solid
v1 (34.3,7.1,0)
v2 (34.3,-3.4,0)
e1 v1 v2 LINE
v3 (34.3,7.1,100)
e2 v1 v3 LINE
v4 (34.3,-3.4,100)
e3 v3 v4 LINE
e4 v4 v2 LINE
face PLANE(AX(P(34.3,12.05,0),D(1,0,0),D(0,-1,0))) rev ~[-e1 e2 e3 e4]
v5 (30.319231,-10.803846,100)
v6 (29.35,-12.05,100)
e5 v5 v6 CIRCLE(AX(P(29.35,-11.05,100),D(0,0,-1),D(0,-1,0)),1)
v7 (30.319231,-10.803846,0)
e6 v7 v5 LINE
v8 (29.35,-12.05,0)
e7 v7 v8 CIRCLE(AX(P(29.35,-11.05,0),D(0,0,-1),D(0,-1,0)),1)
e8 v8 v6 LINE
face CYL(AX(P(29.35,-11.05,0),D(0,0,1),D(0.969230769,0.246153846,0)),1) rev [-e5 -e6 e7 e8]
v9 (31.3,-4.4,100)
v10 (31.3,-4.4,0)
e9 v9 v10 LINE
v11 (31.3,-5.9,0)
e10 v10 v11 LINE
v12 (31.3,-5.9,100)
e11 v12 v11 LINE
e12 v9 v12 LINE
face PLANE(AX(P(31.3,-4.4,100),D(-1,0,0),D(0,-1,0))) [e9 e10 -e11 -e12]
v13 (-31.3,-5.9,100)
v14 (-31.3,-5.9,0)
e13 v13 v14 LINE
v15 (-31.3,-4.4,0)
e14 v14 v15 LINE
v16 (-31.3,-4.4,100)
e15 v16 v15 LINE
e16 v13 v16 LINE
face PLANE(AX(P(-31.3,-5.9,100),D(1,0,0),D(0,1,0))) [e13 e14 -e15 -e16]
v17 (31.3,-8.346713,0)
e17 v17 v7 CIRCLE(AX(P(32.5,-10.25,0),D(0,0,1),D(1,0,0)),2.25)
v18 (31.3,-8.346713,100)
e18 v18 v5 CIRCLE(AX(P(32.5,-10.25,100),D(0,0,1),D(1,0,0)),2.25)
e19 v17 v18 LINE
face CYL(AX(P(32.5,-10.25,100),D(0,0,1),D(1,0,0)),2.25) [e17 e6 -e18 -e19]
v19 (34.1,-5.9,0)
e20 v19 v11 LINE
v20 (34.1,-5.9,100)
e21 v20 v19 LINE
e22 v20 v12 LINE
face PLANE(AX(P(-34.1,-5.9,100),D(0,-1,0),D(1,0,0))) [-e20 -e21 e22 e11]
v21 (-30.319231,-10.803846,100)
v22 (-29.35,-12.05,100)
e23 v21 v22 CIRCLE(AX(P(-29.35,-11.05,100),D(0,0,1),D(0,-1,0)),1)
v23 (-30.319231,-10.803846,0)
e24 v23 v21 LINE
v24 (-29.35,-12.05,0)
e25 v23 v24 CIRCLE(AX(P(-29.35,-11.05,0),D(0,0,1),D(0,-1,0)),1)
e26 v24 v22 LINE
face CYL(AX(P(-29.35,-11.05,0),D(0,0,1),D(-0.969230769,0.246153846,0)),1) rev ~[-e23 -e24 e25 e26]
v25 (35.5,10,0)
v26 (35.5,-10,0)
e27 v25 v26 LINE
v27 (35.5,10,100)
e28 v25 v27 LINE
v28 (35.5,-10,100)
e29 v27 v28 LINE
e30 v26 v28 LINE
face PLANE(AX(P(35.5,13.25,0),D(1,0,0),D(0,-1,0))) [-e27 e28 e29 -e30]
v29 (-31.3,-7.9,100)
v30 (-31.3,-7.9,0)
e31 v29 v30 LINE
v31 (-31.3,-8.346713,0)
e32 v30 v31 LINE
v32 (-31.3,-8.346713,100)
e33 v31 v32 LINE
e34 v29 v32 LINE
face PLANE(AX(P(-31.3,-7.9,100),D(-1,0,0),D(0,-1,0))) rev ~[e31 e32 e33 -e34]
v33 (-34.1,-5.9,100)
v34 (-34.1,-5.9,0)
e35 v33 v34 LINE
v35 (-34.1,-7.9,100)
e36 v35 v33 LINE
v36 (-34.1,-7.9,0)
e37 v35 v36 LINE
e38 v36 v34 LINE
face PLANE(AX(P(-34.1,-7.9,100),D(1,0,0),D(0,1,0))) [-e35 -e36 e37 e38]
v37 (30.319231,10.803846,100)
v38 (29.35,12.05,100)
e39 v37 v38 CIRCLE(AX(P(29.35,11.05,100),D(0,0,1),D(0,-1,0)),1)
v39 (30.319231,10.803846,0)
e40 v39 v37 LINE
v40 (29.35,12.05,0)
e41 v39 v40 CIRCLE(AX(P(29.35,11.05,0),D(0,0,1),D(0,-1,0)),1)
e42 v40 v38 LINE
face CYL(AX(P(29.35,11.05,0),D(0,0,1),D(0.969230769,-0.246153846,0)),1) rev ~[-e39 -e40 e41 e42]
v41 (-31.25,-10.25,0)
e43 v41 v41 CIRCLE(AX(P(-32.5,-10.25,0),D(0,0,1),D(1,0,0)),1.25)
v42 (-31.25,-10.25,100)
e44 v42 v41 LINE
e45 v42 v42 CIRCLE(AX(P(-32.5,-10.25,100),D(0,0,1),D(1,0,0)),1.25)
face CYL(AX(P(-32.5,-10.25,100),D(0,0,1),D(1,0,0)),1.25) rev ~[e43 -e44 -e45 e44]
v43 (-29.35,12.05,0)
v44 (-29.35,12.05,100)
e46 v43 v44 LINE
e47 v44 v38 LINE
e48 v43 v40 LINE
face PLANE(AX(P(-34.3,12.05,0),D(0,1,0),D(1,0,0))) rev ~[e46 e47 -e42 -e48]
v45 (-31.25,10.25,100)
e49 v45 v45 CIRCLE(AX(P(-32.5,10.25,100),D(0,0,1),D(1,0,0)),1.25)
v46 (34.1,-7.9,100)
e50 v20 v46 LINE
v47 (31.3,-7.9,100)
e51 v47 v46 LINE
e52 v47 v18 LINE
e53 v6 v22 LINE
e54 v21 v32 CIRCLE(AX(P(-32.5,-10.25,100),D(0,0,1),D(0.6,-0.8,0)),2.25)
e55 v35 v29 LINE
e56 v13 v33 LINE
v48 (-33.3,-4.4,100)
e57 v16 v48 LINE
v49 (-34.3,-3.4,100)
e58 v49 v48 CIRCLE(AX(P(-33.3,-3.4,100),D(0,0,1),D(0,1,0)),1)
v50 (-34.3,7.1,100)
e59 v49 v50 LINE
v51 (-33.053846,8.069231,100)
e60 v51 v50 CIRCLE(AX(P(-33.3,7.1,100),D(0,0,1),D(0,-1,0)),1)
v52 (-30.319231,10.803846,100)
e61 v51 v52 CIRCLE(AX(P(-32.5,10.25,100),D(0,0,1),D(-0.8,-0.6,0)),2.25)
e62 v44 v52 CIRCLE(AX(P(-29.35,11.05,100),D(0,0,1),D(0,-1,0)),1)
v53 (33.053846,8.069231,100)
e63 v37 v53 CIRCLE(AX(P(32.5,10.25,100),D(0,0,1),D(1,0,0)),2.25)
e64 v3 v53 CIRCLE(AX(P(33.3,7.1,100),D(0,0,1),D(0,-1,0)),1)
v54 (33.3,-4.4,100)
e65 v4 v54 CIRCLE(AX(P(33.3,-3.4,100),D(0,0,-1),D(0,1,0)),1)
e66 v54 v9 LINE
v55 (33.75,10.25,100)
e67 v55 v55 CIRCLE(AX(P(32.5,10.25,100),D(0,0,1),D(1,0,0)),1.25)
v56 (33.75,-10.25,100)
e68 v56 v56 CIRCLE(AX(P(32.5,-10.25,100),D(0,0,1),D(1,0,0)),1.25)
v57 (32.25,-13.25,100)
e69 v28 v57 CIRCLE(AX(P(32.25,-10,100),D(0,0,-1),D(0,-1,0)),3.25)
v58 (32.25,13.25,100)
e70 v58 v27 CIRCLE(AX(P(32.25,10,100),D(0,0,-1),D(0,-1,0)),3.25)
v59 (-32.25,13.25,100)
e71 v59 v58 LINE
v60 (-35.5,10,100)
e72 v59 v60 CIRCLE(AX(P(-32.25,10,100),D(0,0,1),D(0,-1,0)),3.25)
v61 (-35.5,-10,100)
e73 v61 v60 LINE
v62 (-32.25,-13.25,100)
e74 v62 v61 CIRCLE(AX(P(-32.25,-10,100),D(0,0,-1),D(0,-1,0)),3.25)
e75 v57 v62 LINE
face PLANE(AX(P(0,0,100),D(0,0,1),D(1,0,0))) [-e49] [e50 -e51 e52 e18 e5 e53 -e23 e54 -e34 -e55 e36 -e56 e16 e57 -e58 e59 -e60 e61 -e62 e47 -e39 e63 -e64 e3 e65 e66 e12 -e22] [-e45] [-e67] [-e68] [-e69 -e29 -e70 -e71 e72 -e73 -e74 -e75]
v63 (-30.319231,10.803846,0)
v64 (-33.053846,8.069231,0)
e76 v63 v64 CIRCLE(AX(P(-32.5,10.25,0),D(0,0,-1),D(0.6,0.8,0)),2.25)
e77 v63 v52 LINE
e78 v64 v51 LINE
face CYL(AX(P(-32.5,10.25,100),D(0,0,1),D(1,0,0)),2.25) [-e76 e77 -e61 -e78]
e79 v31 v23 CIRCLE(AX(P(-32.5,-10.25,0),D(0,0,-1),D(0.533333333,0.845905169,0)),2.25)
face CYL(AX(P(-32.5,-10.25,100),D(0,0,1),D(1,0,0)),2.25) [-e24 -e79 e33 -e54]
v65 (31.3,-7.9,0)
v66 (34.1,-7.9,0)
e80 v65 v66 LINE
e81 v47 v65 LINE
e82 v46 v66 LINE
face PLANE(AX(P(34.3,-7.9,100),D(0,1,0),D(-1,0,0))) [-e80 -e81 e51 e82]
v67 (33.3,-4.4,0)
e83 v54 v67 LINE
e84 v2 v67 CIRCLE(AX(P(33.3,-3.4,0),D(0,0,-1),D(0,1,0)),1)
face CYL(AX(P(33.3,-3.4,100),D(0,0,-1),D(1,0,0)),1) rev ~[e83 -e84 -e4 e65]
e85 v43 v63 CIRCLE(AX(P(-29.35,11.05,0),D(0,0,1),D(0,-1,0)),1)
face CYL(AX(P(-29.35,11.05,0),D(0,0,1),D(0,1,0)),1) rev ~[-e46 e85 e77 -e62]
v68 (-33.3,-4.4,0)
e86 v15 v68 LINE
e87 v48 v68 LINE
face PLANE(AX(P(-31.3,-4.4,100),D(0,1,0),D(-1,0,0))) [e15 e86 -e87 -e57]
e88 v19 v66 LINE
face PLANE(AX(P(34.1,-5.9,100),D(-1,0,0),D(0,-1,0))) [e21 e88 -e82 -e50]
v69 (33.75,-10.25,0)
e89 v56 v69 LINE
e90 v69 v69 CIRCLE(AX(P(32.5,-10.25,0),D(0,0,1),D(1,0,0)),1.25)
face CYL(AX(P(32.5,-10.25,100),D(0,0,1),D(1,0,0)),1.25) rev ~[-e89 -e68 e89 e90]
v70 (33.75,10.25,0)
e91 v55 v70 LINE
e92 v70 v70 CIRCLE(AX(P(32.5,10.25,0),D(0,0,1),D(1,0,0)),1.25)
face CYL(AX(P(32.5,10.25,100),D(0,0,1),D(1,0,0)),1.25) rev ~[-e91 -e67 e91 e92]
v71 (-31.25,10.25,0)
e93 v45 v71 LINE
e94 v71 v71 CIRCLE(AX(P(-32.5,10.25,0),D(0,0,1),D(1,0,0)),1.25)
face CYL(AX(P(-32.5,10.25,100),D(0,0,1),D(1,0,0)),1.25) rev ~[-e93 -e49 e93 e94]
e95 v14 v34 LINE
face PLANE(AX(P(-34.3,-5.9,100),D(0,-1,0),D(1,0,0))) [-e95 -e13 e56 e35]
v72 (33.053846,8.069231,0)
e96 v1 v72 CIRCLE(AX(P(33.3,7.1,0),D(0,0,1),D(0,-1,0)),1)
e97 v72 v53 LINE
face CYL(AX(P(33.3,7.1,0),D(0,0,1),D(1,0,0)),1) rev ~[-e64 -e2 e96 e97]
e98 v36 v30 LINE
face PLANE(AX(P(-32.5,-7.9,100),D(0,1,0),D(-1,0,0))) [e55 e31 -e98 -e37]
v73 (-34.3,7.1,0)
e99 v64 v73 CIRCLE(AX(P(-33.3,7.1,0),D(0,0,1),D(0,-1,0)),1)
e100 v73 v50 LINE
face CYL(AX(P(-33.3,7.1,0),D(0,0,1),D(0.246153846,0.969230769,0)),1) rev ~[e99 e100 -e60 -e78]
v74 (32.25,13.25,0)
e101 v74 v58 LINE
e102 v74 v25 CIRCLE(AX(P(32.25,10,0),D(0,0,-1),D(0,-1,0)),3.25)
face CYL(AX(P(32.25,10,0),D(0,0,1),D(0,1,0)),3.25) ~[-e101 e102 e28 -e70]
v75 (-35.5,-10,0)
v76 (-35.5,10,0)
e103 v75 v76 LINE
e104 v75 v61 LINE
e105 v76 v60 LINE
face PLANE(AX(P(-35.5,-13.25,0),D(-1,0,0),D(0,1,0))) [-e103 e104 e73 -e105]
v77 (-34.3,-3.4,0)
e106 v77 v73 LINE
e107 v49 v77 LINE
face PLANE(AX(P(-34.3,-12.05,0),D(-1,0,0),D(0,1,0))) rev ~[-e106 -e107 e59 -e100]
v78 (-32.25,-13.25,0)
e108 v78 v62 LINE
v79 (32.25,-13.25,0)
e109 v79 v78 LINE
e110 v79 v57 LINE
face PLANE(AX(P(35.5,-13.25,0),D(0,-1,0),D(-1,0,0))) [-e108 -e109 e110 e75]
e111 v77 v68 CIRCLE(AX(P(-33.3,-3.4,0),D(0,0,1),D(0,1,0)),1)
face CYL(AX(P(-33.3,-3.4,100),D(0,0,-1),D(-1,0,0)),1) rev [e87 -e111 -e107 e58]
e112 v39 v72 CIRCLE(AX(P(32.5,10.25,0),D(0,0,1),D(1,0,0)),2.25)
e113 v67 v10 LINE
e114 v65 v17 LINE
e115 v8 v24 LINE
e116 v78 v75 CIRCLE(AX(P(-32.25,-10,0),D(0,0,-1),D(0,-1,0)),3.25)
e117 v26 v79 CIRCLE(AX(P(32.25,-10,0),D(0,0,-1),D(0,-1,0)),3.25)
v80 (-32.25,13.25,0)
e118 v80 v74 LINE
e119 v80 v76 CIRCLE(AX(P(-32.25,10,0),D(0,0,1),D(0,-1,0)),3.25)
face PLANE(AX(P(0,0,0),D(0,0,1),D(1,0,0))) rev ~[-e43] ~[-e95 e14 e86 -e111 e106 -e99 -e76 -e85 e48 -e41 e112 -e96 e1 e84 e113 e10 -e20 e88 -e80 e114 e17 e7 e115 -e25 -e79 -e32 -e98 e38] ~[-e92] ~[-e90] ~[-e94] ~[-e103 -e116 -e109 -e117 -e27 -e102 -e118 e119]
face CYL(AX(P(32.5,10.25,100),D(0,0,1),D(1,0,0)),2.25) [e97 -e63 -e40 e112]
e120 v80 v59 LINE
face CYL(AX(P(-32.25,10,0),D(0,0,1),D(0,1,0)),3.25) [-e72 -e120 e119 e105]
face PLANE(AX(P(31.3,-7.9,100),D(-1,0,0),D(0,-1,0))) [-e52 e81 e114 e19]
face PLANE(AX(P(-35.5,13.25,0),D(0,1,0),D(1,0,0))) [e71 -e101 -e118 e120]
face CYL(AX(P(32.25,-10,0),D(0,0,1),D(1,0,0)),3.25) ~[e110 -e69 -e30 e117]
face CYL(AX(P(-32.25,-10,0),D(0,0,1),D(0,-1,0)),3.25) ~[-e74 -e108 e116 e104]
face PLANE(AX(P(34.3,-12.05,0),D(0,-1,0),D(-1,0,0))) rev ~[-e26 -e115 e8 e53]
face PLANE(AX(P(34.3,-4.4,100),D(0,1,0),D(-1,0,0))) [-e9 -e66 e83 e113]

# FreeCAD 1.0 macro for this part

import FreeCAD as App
import Part
import Sketcher
Q = App.Units.Quantity


def edges_at(feature, points):
    """Names of the edges that pass closest to the given points."""
    edges = feature.Shape.Edges
    near = lambda p: min(range(len(edges)), key=lambda i: edges[i].distToShape(Part.Vertex(*p))[0])
    return sorted({f"Edge{near(p) + 1}" for p in points})


def add_polygon(sketch, points):
    """Adds a closed chain of lines whose ends are joined by coincident constraints."""
    first, n = sketch.GeometryCount, len(points)
    for a, b in zip(points, points[1:] + points[:1]):
        sketch.addGeometry(Part.LineSegment(App.Vector(*a, 0), App.Vector(*b, 0)), False)
    for i in range(n):
        sketch.addConstraint(Sketcher.Constraint("Coincident", first + i, 2, first + (i + 1) % n, 1))

doc = App.newDocument("Part")
body = doc.addObject("PartDesign::Body", "Body")

sketch1 = body.newObject("Sketcher::SketchObject", "Sketch")
sketch1.AttachmentSupport = (doc.getObject("XY_Plane"), [""])
sketch1.MapMode = "FlatFace"
add_polygon(sketch1, [(35.5, 13.25), (-35.5, 13.25), (-35.5, -13.25), (35.5, -13.25)])
add_polygon(sketch1, [(-34.3, -12.05), (-34.3, 12.05), (34.3, 12.05), (34.3, -12.05)])
sketch1.addConstraint(Sketcher.Constraint("Horizontal", 0))
sketch1.addConstraint(Sketcher.Constraint("Vertical", 1))
sketch1.addConstraint(Sketcher.Constraint("Horizontal", 2))
sketch1.addConstraint(Sketcher.Constraint("Vertical", 3))
sketch1.addConstraint(Sketcher.Constraint("Vertical", 4))
sketch1.addConstraint(Sketcher.Constraint("Horizontal", 5))
sketch1.addConstraint(Sketcher.Constraint("Vertical", 6))
sketch1.addConstraint(Sketcher.Constraint("Horizontal", 7))
sketch1.addConstraint(Sketcher.Constraint("Symmetric", 0, 2, 2, 2, -1, 1))
sketch1.addConstraint(Sketcher.Constraint("Symmetric", 4, 2, 6, 2, -1, 1))
sketch1.addConstraint(Sketcher.Constraint("DistanceX", 0, 2, 0, 1, Q("71 mm")))
sketch1.addConstraint(Sketcher.Constraint("DistanceY", 1, 2, 1, 1, Q("26.5 mm")))
sketch1.addConstraint(Sketcher.Constraint("DistanceX", 0, 2, 4, 2, Q("1.2 mm")))
sketch1.addConstraint(Sketcher.Constraint("DistanceY", 4, 2, 0, 2, Q("1.2 mm")))
pad1 = body.newObject("PartDesign::Pad", "Pad")
pad1.Profile = sketch1
pad1.Length = 100
doc.recompute()

fillet = body.newObject("PartDesign::Fillet", "Fillet")
fillet.Base = (pad1, edges_at(pad1, [
    (-34.3, 12.05, 50),
    (34.3, 12.05, 50),
    (34.3, -12.05, 50),
    (-34.3, -12.05, 50),
]))
fillet.Radius = 2
doc.recompute()

fillet2 = body.newObject("PartDesign::Fillet", "Fillet001")
fillet2.Base = (fillet, edges_at(fillet, [
    (-35.5, 13.25, 50),
    (-35.5, -13.25, 50),
    (35.5, -13.25, 50),
    (35.5, 13.25, 50),
]))
fillet2.Radius = 3.25

sketch2 = body.newObject("Sketcher::SketchObject", "Sketch001")
sketch2.AttachmentSupport = (doc.getObject("XY_Plane"), [""])
sketch2.MapMode = "FlatFace"
sketch2.AttachmentOffset = App.Placement(App.Vector(0, 0, 100), App.Rotation())
add_polygon(sketch2, [(-34.3, -4.4), (-34.3, -5.9), (-31.3, -5.9), (-31.3, -4.4)])
add_polygon(sketch2, [(-34.3, -7.9), (-34.3, -9.4), (-31.3, -9.4), (-31.3, -7.9)])
add_polygon(sketch2, [(34.3, -9.4), (34.3, -7.9), (31.3, -7.9), (31.3, -9.4)])
add_polygon(sketch2, [(34.3, -5.9), (34.3, -4.4), (31.3, -4.4), (31.3, -5.9)])
sketch2.addConstraint(Sketcher.Constraint("Vertical", 0))
sketch2.addConstraint(Sketcher.Constraint("Horizontal", 1))
sketch2.addConstraint(Sketcher.Constraint("Vertical", 2))
sketch2.addConstraint(Sketcher.Constraint("Horizontal", 3))
sketch2.addConstraint(Sketcher.Constraint("Vertical", 4))
sketch2.addConstraint(Sketcher.Constraint("Horizontal", 5))
sketch2.addConstraint(Sketcher.Constraint("Vertical", 6))
sketch2.addConstraint(Sketcher.Constraint("Horizontal", 7))
sketch2.addConstraint(Sketcher.Constraint("Vertical", 8))
sketch2.addConstraint(Sketcher.Constraint("Horizontal", 9))
sketch2.addConstraint(Sketcher.Constraint("Vertical", 10))
sketch2.addConstraint(Sketcher.Constraint("Horizontal", 11))
sketch2.addConstraint(Sketcher.Constraint("Vertical", 12))
sketch2.addConstraint(Sketcher.Constraint("Horizontal", 13))
sketch2.addConstraint(Sketcher.Constraint("Vertical", 14))
sketch2.addConstraint(Sketcher.Constraint("Horizontal", 15))
sketch2.addConstraint(Sketcher.Constraint("Symmetric", 7, 2, 8, 2, -2))
sketch2.addConstraint(Sketcher.Constraint("Symmetric", 5, 2, 10, 2, -2))
sketch2.addConstraint(Sketcher.Constraint("Symmetric", 3, 2, 12, 2, -2))
sketch2.addConstraint(Sketcher.Constraint("Symmetric", 1, 2, 14, 2, -2))
sketch2.addConstraint(Sketcher.Constraint("Vertical", 3, 2, 4, 2))
sketch2.addConstraint(Sketcher.Constraint("Vertical", 2, 2, 5, 2))
sketch2.addConstraint(Sketcher.Constraint("Equal", 2, 4))
sketch2.addConstraint(Sketcher.Constraint("DistanceX", 1, 1, 1, 2, Q("3 mm")))
sketch2.addConstraint(Sketcher.Constraint("DistanceY", 0, 2, 0, 1, Q("1.5 mm")))
sketch2.addConstraint(Sketcher.Constraint("DistanceY", 6, 2, 1, 2, Q("2 mm")))
sketch2.addConstraint(Sketcher.Constraint("DistanceX", 0, 2, -1, 1, Q("34.3 mm")))
sketch2.addConstraint(Sketcher.Constraint("DistanceY", 0, 2, -1, 1, Q("5.9 mm")))
pad2 = body.newObject("PartDesign::Pad", "Pad001")
pad2.Profile = sketch2
pad2.Length = 100
pad2.Reversed = True
doc.recompute()

fillet3 = body.newObject("PartDesign::Fillet", "Fillet002")
fillet3.Base = (pad2, edges_at(pad2, [
    (-34.3, -4.4, 50),
    (-34.3, -9.4, 50),
    (34.3, -9.4, 50),
    (34.3, -4.4, 50),
]))
fillet3.Radius = 1

sketch3 = body.newObject("Sketcher::SketchObject", "Sketch002")
sketch3.AttachmentSupport = (doc.getObject("XY_Plane"), [""])
sketch3.MapMode = "FlatFace"
sketch3.AttachmentOffset = App.Placement(App.Vector(0, 0, 100), App.Rotation())
sketch3.addGeometry(Part.Circle(App.Vector(-32.5, 10.25, 0), App.Vector(0, 0, 1), 2.25), False)
sketch3.addGeometry(Part.Circle(App.Vector(-32.5, -10.25, 0), App.Vector(0, 0, 1), 2.25), False)
sketch3.addGeometry(Part.Circle(App.Vector(32.5, -10.25, 0), App.Vector(0, 0, 1), 2.25), False)
sketch3.addGeometry(Part.Circle(App.Vector(32.5, 10.25, 0), App.Vector(0, 0, 1), 2.25), False)
sketch3.addConstraint(Sketcher.Constraint("Equal", 0, 1))
sketch3.addConstraint(Sketcher.Constraint("Equal", 1, 2))
sketch3.addConstraint(Sketcher.Constraint("Equal", 2, 3))
sketch3.addConstraint(Sketcher.Constraint("Symmetric", 0, 3, 2, 3, -1, 1))
sketch3.addConstraint(Sketcher.Constraint("Symmetric", 1, 3, 3, 3, -1, 1))
sketch3.addConstraint(Sketcher.Constraint("Symmetric", 1, 3, 2, 3, -2))
sketch3.addConstraint(Sketcher.Constraint("Diameter", 0, Q("4.5 mm")))
sketch3.addConstraint(Sketcher.Constraint("DistanceX", 1, 3, 2, 3, Q("65 mm")))
sketch3.addConstraint(Sketcher.Constraint("DistanceY", 1, 3, 0, 3, Q("20.5 mm")))
pad3 = body.newObject("PartDesign::Pad", "Pad002")
pad3.Profile = sketch3
pad3.Length = 100
pad3.Reversed = True

sketch4 = body.newObject("Sketcher::SketchObject", "Sketch003")
sketch4.AttachmentSupport = (doc.getObject("XY_Plane"), [""])
sketch4.MapMode = "FlatFace"
sketch4.AttachmentOffset = App.Placement(App.Vector(0, 0, 100), App.Rotation())
sketch4.addGeometry(Part.Circle(App.Vector(-32.5, 10.25, 0), App.Vector(0, 0, 1), 1.25), False)
sketch4.addGeometry(Part.Circle(App.Vector(-32.5, -10.25, 0), App.Vector(0, 0, 1), 1.25), False)
sketch4.addGeometry(Part.Circle(App.Vector(32.5, 10.25, 0), App.Vector(0, 0, 1), 1.25), False)
sketch4.addGeometry(Part.Circle(App.Vector(32.5, -10.25, 0), App.Vector(0, 0, 1), 1.25), False)
sketch4.addConstraint(Sketcher.Constraint("Equal", 0, 1))
sketch4.addConstraint(Sketcher.Constraint("Equal", 1, 2))
sketch4.addConstraint(Sketcher.Constraint("Equal", 2, 3))
sketch4.addConstraint(Sketcher.Constraint("Symmetric", 1, 3, 2, 3, -1, 1))
sketch4.addConstraint(Sketcher.Constraint("Symmetric", 0, 3, 3, 3, -1, 1))
sketch4.addConstraint(Sketcher.Constraint("Symmetric", 0, 3, 2, 3, -2))
sketch4.addConstraint(Sketcher.Constraint("Diameter", 0, Q("2.5 mm")))
sketch4.addConstraint(Sketcher.Constraint("DistanceX", 0, 3, 2, 3, Q("65 mm")))
sketch4.addConstraint(Sketcher.Constraint("DistanceY", 1, 3, 0, 3, Q("20.5 mm")))
pocket1 = body.newObject("PartDesign::Pocket", "Pocket")
pocket1.Profile = sketch4
pocket1.Length = 100

sketch5 = body.newObject("Sketcher::SketchObject", "Sketch004")
sketch5.AttachmentSupport = (doc.getObject("XY_Plane"), [""])
sketch5.MapMode = "FlatFace"
sketch5.AttachmentOffset = App.Placement(App.Vector(0, 0, 100), App.Rotation())
add_polygon(sketch5, [(34.3, -7.9), (34.3, -5.9), (32.5, -5.9), (32.5, -7.9)])
add_polygon(sketch5, [(-34.3, -5.9), (-34.3, -7.9), (-32.5, -7.9), (-32.5, -5.9)])
sketch5.addConstraint(Sketcher.Constraint("Vertical", 0))
sketch5.addConstraint(Sketcher.Constraint("Horizontal", 1))
sketch5.addConstraint(Sketcher.Constraint("Vertical", 2))
sketch5.addConstraint(Sketcher.Constraint("Horizontal", 3))
sketch5.addConstraint(Sketcher.Constraint("Vertical", 4))
sketch5.addConstraint(Sketcher.Constraint("Horizontal", 5))
sketch5.addConstraint(Sketcher.Constraint("Vertical", 6))
sketch5.addConstraint(Sketcher.Constraint("Horizontal", 7))
sketch5.addConstraint(Sketcher.Constraint("Symmetric", 3, 2, 4, 2, -2))
sketch5.addConstraint(Sketcher.Constraint("Symmetric", 1, 2, 6, 2, -2))
sketch5.addConstraint(Sketcher.Constraint("DistanceX", 1, 2, 1, 1, Q("1.8 mm")))
sketch5.addConstraint(Sketcher.Constraint("DistanceX", 5, 2, 2, 2, Q("65 mm")))
sketch5.addConstraint(Sketcher.Constraint("DistanceY", 0, 1, 0, 2, Q("2 mm")))
sketch5.addConstraint(Sketcher.Constraint("DistanceY", 0, 2, -1, 1, Q("5.9 mm")))
pad4 = body.newObject("PartDesign::Pad", "Pad003")
pad4.Profile = sketch5
pad4.Length = 100
pad4.Reversed = True

sketch6 = body.newObject("Sketcher::SketchObject", "Sketch005")
sketch6.AttachmentSupport = (doc.getObject("XY_Plane"), [""])
sketch6.MapMode = "FlatFace"
sketch6.AttachmentOffset = App.Placement(App.Vector(0, 0, 100), App.Rotation())
add_polygon(sketch6, [(-34.1, -5.9), (-34.1, -7.9), (34.1, -7.9), (34.1, -5.9)])
sketch6.addConstraint(Sketcher.Constraint("Vertical", 0))
sketch6.addConstraint(Sketcher.Constraint("Horizontal", 1))
sketch6.addConstraint(Sketcher.Constraint("Vertical", 2))
sketch6.addConstraint(Sketcher.Constraint("Horizontal", 3))
sketch6.addConstraint(Sketcher.Constraint("DistanceX", 1, 1, 1, 2, Q("68.2 mm")))
sketch6.addConstraint(Sketcher.Constraint("DistanceY", 0, 2, 0, 1, Q("2 mm")))
sketch6.addConstraint(Sketcher.Constraint("DistanceX", 0, 2, -1, 1, Q("34.1 mm")))
sketch6.addConstraint(Sketcher.Constraint("DistanceY", 0, 2, -1, 1, Q("7.9 mm")))
pocket2 = body.newObject("PartDesign::Pocket", "Pocket001")
pocket2.Profile = sketch6
pocket2.Length = 200
doc.recompute()

fillet4 = body.newObject("PartDesign::Fillet", "Fillet003")
fillet4.Base = (pocket2, edges_at(pocket2, [
    (-34.3, 8.9, 50),
    (-31.15, 12.05, 50),
    (31.15, 12.05, 50),
    (34.3, 8.9, 50),
    (31.15, -12.05, 50),
    (-31.15, -12.05, 50),
]))
fillet4.Radius = 1

doc.recompute()
